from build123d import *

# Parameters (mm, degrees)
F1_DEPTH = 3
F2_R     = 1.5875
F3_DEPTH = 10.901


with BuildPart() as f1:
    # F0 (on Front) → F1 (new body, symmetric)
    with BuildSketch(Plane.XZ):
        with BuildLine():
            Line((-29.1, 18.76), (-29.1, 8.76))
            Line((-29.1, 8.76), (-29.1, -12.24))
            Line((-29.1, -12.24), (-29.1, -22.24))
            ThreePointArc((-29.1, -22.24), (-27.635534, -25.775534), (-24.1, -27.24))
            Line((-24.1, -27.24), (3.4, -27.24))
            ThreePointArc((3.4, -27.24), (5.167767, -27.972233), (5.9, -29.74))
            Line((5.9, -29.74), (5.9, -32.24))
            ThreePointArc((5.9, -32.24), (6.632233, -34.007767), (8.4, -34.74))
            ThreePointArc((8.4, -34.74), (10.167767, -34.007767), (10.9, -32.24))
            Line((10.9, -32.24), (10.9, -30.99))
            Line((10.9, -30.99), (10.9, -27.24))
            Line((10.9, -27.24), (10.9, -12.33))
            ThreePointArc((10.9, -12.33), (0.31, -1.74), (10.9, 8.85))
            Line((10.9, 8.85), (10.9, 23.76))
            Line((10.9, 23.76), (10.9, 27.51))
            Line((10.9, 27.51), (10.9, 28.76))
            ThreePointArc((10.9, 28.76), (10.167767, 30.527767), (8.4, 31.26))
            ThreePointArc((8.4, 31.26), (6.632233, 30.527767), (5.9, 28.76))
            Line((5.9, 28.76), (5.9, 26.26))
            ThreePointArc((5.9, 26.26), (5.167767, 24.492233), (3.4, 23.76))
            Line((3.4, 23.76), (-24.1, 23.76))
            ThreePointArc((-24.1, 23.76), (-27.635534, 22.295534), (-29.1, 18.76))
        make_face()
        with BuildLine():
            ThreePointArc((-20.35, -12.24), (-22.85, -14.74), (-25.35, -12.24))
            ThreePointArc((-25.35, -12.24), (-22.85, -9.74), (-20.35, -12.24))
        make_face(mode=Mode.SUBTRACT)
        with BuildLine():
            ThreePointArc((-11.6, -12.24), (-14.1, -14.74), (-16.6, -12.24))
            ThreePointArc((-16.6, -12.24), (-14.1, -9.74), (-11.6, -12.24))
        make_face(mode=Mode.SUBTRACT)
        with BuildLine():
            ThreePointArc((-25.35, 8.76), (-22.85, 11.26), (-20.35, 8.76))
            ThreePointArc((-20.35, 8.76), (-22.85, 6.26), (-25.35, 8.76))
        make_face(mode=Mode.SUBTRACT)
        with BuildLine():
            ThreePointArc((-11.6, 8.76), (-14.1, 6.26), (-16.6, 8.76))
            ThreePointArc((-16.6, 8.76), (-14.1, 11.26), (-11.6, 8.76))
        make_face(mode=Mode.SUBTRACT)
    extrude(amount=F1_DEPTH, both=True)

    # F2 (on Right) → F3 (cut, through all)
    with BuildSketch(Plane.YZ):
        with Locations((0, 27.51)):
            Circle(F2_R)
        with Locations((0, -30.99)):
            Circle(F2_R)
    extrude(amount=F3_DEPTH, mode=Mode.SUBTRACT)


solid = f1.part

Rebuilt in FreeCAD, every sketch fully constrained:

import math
import FreeCAD as App
import Part
import Sketcher
from FreeCAD import Vector
Q = App.Units.Quantity

doc = App.newDocument("Part")
body = doc.addObject("PartDesign::Body", "Body")

sketch1 = doc.addObject("Sketcher::SketchObject", "Sketch")
body.addObject(sketch1)
sketch1.AttachmentSupport = (doc.XZ_Plane, [""])
sketch1.MapMode = "FlatFace"
sketch1.addGeometry([
    Part.LineSegment(Vector(-29.1, 18.8, 0), Vector(-29.1, -22.2, 0)),
    Part.ArcOfCircle(Part.Circle(Vector(-24.1, -22.2, 0), Vector(0, 0, 1), 5), math.radians(180), math.radians(270)),
    Part.LineSegment(Vector(-24.1, -27.2, 0), Vector(3.4, -27.2, 0)),
    Part.ArcOfCircle(Part.Circle(Vector(3.4, -29.7, 0), Vector(0, 0, 1), 2.5), math.radians(0), math.radians(90)),
    Part.LineSegment(Vector(5.9, -29.7, 0), Vector(5.9, -32.2, 0)),
    Part.ArcOfCircle(Part.Circle(Vector(8.4, -32.2, 0), Vector(0, 0, 1), 2.5), math.radians(180), math.radians(270)),
    Part.ArcOfCircle(Part.Circle(Vector(8.4, -32.2, 0), Vector(0, 0, 1), 2.5), math.radians(-90), math.radians(0)),
    Part.LineSegment(Vector(10.9, -32.2, 0), Vector(10.9, -12.3, 0)),
    Part.ArcOfCircle(Part.Circle(Vector(10.9, -1.7, 0), Vector(0, 0, 1), 10.6), math.radians(90), math.radians(270)),
    Part.LineSegment(Vector(10.9, 8.8, 0), Vector(10.9, 28.8, 0)),
    Part.ArcOfCircle(Part.Circle(Vector(8.4, 28.8, 0), Vector(0, 0, 1), 2.5), math.radians(0), math.radians(90)),
    Part.ArcOfCircle(Part.Circle(Vector(8.4, 28.8, 0), Vector(0, 0, 1), 2.5), math.radians(90), math.radians(180)),
    Part.LineSegment(Vector(5.9, 28.8, 0), Vector(5.9, 26.3, 0)),
    Part.ArcOfCircle(Part.Circle(Vector(3.4, 26.3, 0), Vector(0, 0, 1), 2.5), math.radians(-90), math.radians(0)),
    Part.LineSegment(Vector(3.4, 23.8, 0), Vector(-24.1, 23.8, 0)),
    Part.ArcOfCircle(Part.Circle(Vector(-24.1, 18.8, 0), Vector(0, 0, 1), 5), math.radians(90), math.radians(180)),
    Part.Circle(Vector(-22.9, -12.2, 0), Vector(0, 0, 1), 2.5),
    Part.Circle(Vector(-14.1, -12.2, 0), Vector(0, 0, 1), 2.5),
    Part.Circle(Vector(-22.9, 8.8, 0), Vector(0, 0, 1), 2.5),
    Part.Circle(Vector(-14.1, 8.8, 0), Vector(0, 0, 1), 2.5),
], False)
sketch1.addConstraint([
    Sketcher.Constraint("Tangent", 0, 2, 1, 1),
    Sketcher.Constraint("Tangent", 1, 2, 2, 1),
    Sketcher.Constraint("Tangent", 2, 2, 3, 2),
    Sketcher.Constraint("Tangent", 3, 1, 4, 1),
    Sketcher.Constraint("Tangent", 4, 2, 5, 1),
    Sketcher.Constraint("Tangent", 5, 2, 6, 1),
    Sketcher.Constraint("Tangent", 6, 2, 7, 1),
    Sketcher.Constraint("Coincident", 7, 2, 8, 2),
    Sketcher.Constraint("Coincident", 8, 1, 9, 1),
    Sketcher.Constraint("Tangent", 9, 2, 10, 1),
    Sketcher.Constraint("Tangent", 10, 2, 11, 1),
    Sketcher.Constraint("Tangent", 11, 2, 12, 1),
    Sketcher.Constraint("Tangent", 12, 2, 13, 2),
    Sketcher.Constraint("Tangent", 13, 1, 14, 1),
    Sketcher.Constraint("Tangent", 14, 2, 15, 1),
    Sketcher.Constraint("Tangent", 15, 2, 0, 1),
    Sketcher.Constraint("Vertical", 0),
    Sketcher.Constraint("Horizontal", 2),
    Sketcher.Constraint("Vertical", 4),
    Sketcher.Constraint("Vertical", 7),
    Sketcher.Constraint("Vertical", 9),
    Sketcher.Constraint("Vertical", 12),
    Sketcher.Constraint("Horizontal", 14),
    Sketcher.Constraint("Equal", 3, 5),
    Sketcher.Constraint("Equal", 5, 6),
    Sketcher.Constraint("Equal", 6, 10),
    Sketcher.Constraint("Equal", 10, 11),
    Sketcher.Constraint("Equal", 11, 13),
    Sketcher.Constraint("Equal", 1, 15),
    Sketcher.Constraint("Equal", 13, 16),
    Sketcher.Constraint("Equal", 16, 17),
    Sketcher.Constraint("Equal", 17, 18),
    Sketcher.Constraint("Equal", 18, 19),
    Sketcher.Constraint("Horizontal", 16, 3, 17, 3),
    Sketcher.Constraint("Horizontal", 18, 3, 19, 3),
    Sketcher.Constraint("Vertical", 6, 3, 10, 3),
    Sketcher.Constraint("Vertical", 16, 3, 18, 3),
    Sketcher.Constraint("Vertical", 17, 3, 19, 3),
    Sketcher.Constraint("Vertical", 11, 3, 5, 2),
    Sketcher.Constraint("Vertical", 8, 3, 6, 2),
    Sketcher.Constraint("Vertical", 5, 2, 10, 2),
    Sketcher.Constraint("Equal", 7, 9),
    Sketcher.Constraint("Equal", 4, 12),
    Sketcher.Constraint("Diameter", 16, Q("5 mm")),
    Sketcher.Constraint("Radius", 1, Q("5 mm")),
    Sketcher.Constraint("DistanceY", 0, 2, 0, 1, Q("41 mm")),
    Sketcher.Constraint("Radius", 8, Q("10.59 mm")),
    Sketcher.Constraint("DistanceX", 2, 1, 2, 2, Q("27.5 mm")),
    Sketcher.Constraint("DistanceY", 4, 2, 4, 1, Q("2.5 mm")),
    Sketcher.Constraint("DistanceY", 1, 3, 16, 3, Q("10 mm")),
    Sketcher.Constraint("DistanceX", 1, 3, 17, 3, Q("10 mm")),
    Sketcher.Constraint("DistanceY", 18, 3, 15, 3, Q("10 mm")),
    Sketcher.Constraint("DistanceX", 1, 3, -1, 1, Q("24.1 mm")),
    Sketcher.Constraint("DistanceY", 1, 3, -1, 1, Q("22.24 mm")),
    Sketcher.Constraint("DistanceX", 16, 3, -1, 1, Q("22.85 mm")),
])
pad1 = doc.addObject("PartDesign::Pad", "Pad")
body.addObject(pad1)
pad1.Profile = sketch1
pad1.Length = 6
pad1.Midplane = True

sketch2 = doc.addObject("Sketcher::SketchObject", "Sketch001")
body.addObject(sketch2)
sketch2.AttachmentSupport = (doc.YZ_Plane, [""])
sketch2.MapMode = "FlatFace"
sketch2.addGeometry([
    Part.Circle(Vector(0, 27.5, 0), Vector(0, 0, 1), 1.6),
    Part.Circle(Vector(0, -31, 0), Vector(0, 0, 1), 1.6),
], False)
sketch2.addConstraint([
    Sketcher.Constraint("Equal", 0, 1),
    Sketcher.Constraint("PointOnObject", 0, 3, -2),
    Sketcher.Constraint("PointOnObject", 1, 3, -2),
    Sketcher.Constraint("Diameter", 0, Q("3.175 mm")),
    Sketcher.Constraint("DistanceY", 1, 3, 0, 3, Q("58.5 mm")),
    Sketcher.Constraint("DistanceY", -1, 1, 0, 3, Q("27.51 mm")),
])
pocket1 = doc.addObject("PartDesign::Pocket", "Pocket")
body.addObject(pocket1)
pocket1.Profile = sketch2
pocket1.Type = "ThroughAll"
pocket1.Reversed = True

doc.recompute()
